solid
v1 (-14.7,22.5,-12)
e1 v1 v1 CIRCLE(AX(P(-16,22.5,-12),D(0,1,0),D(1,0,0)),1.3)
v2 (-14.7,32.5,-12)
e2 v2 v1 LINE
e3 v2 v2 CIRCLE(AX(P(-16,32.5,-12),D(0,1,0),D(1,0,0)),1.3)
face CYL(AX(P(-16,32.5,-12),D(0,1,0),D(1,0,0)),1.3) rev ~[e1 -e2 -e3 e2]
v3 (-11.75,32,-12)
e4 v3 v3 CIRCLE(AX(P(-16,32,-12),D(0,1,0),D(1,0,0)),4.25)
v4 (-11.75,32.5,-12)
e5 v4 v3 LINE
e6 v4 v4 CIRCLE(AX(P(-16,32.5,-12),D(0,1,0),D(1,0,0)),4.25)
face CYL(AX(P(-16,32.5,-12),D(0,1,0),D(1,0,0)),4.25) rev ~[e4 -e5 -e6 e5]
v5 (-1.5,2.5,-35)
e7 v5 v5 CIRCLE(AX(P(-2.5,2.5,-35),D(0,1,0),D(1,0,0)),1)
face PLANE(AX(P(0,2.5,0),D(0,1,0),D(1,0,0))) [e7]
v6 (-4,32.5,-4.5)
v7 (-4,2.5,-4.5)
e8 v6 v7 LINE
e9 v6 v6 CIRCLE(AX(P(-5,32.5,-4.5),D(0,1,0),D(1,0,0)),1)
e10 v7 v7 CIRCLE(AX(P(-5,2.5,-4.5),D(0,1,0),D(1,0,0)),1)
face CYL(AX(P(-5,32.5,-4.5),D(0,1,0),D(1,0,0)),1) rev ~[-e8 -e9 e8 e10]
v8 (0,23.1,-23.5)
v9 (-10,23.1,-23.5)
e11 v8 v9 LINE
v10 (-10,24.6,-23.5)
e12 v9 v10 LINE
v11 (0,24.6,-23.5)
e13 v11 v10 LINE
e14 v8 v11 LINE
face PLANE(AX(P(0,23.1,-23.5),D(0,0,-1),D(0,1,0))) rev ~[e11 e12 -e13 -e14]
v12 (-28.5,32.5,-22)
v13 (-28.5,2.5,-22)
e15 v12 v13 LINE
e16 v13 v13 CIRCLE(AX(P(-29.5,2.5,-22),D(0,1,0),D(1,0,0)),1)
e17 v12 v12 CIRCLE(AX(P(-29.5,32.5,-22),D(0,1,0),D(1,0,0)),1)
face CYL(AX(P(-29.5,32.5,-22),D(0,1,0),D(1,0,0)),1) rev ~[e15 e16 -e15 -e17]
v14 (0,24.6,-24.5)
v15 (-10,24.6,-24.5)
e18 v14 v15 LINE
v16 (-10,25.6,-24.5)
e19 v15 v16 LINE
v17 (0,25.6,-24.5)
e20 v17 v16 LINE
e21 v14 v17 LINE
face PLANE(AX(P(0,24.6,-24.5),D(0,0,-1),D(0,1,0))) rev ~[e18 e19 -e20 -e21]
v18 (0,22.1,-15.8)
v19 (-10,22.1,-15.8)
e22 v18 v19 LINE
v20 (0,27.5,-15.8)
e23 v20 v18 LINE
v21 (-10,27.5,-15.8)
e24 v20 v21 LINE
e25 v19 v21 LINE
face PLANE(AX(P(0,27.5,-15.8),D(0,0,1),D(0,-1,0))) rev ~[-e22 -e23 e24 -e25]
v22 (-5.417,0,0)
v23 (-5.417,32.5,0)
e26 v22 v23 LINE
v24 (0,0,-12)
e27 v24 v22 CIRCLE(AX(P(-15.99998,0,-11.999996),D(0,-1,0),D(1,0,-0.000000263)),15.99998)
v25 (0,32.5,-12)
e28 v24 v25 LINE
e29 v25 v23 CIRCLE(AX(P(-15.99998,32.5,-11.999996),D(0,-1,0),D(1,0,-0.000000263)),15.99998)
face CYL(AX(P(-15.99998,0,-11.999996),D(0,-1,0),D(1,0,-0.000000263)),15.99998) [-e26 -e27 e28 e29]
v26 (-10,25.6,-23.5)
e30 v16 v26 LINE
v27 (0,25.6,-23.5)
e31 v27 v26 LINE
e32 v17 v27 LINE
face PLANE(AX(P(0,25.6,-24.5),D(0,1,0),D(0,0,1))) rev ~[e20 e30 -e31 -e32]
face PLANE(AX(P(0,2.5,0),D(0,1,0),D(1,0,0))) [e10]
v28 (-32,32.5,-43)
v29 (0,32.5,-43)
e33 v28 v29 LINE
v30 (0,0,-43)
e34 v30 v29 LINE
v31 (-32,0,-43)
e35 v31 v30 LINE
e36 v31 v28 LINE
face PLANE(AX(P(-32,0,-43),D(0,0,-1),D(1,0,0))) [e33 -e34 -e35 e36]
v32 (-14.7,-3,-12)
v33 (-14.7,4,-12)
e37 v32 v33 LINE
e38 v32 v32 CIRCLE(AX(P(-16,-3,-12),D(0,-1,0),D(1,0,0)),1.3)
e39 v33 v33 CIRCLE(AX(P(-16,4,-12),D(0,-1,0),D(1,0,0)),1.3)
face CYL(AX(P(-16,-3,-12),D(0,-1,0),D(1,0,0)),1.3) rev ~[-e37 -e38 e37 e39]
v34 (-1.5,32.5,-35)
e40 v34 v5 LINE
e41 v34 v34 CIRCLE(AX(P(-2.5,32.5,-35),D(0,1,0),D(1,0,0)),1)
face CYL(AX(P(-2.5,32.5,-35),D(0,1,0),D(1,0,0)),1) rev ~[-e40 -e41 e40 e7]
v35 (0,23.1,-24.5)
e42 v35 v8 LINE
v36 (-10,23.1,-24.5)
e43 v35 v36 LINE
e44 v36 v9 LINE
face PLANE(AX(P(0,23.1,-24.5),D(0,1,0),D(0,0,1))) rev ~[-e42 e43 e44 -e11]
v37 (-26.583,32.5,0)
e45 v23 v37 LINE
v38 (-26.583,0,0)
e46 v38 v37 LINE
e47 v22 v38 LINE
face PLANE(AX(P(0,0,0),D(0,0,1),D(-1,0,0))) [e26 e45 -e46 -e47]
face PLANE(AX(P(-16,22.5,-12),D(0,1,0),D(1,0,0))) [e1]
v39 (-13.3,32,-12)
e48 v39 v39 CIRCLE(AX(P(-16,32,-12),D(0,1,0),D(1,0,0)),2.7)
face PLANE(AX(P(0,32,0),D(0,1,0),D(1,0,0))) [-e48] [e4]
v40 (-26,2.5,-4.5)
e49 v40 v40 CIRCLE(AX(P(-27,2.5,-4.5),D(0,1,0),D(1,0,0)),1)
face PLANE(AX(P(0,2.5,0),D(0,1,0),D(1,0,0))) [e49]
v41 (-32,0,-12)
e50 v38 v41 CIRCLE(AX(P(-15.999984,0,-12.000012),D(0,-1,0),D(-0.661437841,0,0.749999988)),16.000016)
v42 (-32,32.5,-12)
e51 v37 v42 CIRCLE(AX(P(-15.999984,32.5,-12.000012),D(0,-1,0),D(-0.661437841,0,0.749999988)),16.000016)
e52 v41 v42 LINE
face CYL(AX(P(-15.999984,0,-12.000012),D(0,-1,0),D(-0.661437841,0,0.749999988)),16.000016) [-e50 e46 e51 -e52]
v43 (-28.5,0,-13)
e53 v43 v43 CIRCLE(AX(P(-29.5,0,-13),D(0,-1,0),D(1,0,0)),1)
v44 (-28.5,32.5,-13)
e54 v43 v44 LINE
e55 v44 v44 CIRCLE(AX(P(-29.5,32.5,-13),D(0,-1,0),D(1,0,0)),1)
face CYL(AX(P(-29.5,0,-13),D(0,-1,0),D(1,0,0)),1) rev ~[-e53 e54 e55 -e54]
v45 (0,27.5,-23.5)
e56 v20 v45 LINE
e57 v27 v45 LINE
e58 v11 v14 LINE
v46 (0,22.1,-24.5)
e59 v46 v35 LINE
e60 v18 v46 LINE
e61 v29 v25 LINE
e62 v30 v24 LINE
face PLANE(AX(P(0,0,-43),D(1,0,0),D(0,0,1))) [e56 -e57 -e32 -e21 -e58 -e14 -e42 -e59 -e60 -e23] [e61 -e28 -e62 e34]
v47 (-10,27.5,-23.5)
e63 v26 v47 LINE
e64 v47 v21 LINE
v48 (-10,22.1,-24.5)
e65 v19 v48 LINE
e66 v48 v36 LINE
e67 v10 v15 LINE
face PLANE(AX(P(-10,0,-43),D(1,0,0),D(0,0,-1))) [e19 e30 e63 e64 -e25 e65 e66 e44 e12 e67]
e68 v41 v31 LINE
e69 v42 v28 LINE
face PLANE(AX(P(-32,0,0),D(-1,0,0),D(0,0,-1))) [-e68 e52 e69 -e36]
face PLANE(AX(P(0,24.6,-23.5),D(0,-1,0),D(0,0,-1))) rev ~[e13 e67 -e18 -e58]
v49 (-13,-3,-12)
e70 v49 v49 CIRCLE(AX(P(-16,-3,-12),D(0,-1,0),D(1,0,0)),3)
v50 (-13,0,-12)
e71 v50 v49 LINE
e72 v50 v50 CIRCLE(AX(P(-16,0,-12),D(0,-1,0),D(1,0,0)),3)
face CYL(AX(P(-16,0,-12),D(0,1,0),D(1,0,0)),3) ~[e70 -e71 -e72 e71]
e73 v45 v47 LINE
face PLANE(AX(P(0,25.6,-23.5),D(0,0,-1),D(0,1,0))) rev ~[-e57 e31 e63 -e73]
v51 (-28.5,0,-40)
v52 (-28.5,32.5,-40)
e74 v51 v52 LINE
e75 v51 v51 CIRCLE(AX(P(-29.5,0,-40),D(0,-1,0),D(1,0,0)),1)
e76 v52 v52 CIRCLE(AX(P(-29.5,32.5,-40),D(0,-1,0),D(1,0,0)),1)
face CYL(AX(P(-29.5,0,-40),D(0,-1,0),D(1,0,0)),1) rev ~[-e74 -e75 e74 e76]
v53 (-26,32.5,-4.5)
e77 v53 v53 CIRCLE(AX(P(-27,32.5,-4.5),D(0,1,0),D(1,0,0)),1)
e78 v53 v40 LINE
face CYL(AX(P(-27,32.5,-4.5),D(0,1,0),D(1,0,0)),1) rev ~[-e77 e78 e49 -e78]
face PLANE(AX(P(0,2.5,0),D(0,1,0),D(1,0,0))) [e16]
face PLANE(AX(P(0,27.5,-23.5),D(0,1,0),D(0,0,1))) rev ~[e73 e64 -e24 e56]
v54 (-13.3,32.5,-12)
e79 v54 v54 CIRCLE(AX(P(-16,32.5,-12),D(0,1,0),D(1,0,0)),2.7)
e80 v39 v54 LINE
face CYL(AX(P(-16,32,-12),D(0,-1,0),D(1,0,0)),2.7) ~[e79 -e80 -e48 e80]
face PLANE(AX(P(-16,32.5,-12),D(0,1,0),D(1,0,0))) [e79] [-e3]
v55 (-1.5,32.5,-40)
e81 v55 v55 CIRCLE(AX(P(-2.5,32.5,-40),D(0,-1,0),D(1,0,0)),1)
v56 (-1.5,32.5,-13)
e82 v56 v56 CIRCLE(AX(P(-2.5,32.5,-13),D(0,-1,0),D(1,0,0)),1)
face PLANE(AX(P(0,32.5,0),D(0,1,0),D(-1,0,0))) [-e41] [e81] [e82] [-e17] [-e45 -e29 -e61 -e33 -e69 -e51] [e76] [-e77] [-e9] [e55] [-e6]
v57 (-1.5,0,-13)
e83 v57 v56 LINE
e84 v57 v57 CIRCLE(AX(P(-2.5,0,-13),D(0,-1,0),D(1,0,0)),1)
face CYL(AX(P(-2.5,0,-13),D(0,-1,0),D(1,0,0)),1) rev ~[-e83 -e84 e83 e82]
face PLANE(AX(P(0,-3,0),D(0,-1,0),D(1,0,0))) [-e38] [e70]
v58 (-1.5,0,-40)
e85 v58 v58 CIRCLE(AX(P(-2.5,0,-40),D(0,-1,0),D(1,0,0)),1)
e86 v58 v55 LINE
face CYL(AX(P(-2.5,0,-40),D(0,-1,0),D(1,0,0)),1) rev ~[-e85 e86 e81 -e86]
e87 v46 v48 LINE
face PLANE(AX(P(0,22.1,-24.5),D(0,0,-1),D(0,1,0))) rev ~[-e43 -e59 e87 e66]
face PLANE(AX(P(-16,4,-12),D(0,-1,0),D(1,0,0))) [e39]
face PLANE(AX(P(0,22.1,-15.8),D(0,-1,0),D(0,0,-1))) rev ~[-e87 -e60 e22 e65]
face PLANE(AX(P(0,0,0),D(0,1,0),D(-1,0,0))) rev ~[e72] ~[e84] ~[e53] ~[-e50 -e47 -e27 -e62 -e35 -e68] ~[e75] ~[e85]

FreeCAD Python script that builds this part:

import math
import FreeCAD as App
import Part
import Sketcher

doc = App.newDocument("Part")
body = doc.addObject("PartDesign::Body", "Body")

sketch1 = body.newObject("Sketcher::SketchObject", "Sketch")
sketch1.AttachmentSupport = (doc.getObject("XZ_Plane"), [""])
sketch1.MapMode = "FlatFace"
sketch1.addGeometry([
    Part.LineSegment(App.Vector(-32, 0, 0), App.Vector(0, 0, 0)),
    Part.LineSegment(App.Vector(0, 0, 0), App.Vector(0, -43, 0)),
    Part.LineSegment(App.Vector(0, -43, 0), App.Vector(-32, -43, 0)),
    Part.LineSegment(App.Vector(-32, -43, 0), App.Vector(-32, 0, 0)),
], False)
sketch1.addConstraint([
    Sketcher.Constraint("Coincident", 0, 2, 1, 1),
    Sketcher.Constraint("Coincident", 1, 2, 2, 1),
    Sketcher.Constraint("Coincident", 2, 2, 3, 1),
    Sketcher.Constraint("Coincident", 3, 2, 0, 1),
    Sketcher.Constraint("Horizontal", 0),
    Sketcher.Constraint("Vertical", 1),
    Sketcher.Constraint("Horizontal", 2),
    Sketcher.Constraint("Vertical", 3),
    Sketcher.Constraint("Coincident", 0, 2, -1, 1),
    Sketcher.Constraint("DistanceX", 0, 1, 0, 2, 32.0),
    Sketcher.Constraint("DistanceY", 1, 2, 1, 1, 43.0),
])
pad1 = body.newObject("PartDesign::Pad", "Pad")
pad1.Profile = sketch1
pad1.Length = 32.5
pad1.Reversed = True

sketch2 = body.newObject("Sketcher::SketchObject", "Sketch001")
sketch2.AttachmentSupport = (doc.getObject("XZ_Plane"), [""])
sketch2.MapMode = "FlatFace"
sketch2.addGeometry([
    Part.LineSegment(App.Vector(-27, 0, 0), App.Vector(-32, 0, 0)),
    Part.LineSegment(App.Vector(-32, 0, 0), App.Vector(-32, -12, 0)),
    Part.ArcOfCircle(Part.Circle(App.Vector(-16, -12, 0), App.Vector(0, 0, 1), 16), math.radians(131), math.radians(180)),
    Part.LineSegment(App.Vector(0, 0, 0), App.Vector(-5, 0, 0)),
    Part.ArcOfCircle(Part.Circle(App.Vector(-16, -12, 0), App.Vector(0, 0, 1), 16), math.radians(0), math.radians(49)),
    Part.LineSegment(App.Vector(0, -12, 0), App.Vector(0, 0, 0)),
], False)
sketch2.addConstraint([
    Sketcher.Constraint("Coincident", 0, 2, 1, 1),
    Sketcher.Constraint("Tangent", 1, 2, 2, 2),
    Sketcher.Constraint("Coincident", 2, 1, 0, 1),
    Sketcher.Constraint("Coincident", 3, 2, 4, 2),
    Sketcher.Constraint("Tangent", 4, 1, 5, 1),
    Sketcher.Constraint("Coincident", 5, 2, 3, 1),
    Sketcher.Constraint("Horizontal", 0),
    Sketcher.Constraint("Vertical", 1),
    Sketcher.Constraint("Horizontal", 3),
    Sketcher.Constraint("Vertical", 5),
    Sketcher.Constraint("Coincident", 5, 2, -1, 1),
    Sketcher.Constraint("Coincident", 4, 3, 2, 3),
    Sketcher.Constraint("Equal", 2, 4),
    Sketcher.Constraint("PointOnObject", 0, 2, -1),
    Sketcher.Constraint("Radius", 2, 16.0),
    Sketcher.Constraint("DistanceY", 1, 2, 1, 1, 12.0),
])
pocket1 = body.newObject("PartDesign::Pocket", "Pocket")
pocket1.Profile = sketch2
pocket1.Length = 32.5

sketch3 = body.newObject("Sketcher::SketchObject", "Sketch002")
sketch3.AttachmentSupport = (doc.getObject("XZ_Plane"), [""])
sketch3.MapMode = "FlatFace"
sketch3.addGeometry([
    Part.Circle(App.Vector(-29.5, -13, 0), App.Vector(0, 0, 1), 1),
    Part.Circle(App.Vector(-2.5, -13, 0), App.Vector(0, 0, 1), 1),
    Part.Circle(App.Vector(-29.5, -40, 0), App.Vector(0, 0, 1), 1),
    Part.Circle(App.Vector(-2.5, -40, 0), App.Vector(0, 0, 1), 1),
], False)
sketch3.addConstraint([
    Sketcher.Constraint("Equal", 0, 1),
    Sketcher.Constraint("Equal", 1, 2),
    Sketcher.Constraint("Equal", 2, 3),
    Sketcher.Constraint("Horizontal", 0, 3, 1, 3),
    Sketcher.Constraint("Horizontal", 2, 3, 3, 3),
    Sketcher.Constraint("Vertical", 0, 3, 2, 3),
    Sketcher.Constraint("Vertical", 1, 3, 3, 3),
    Sketcher.Constraint("Diameter", 0, 2.0),
    Sketcher.Constraint("DistanceY", 0, 3, -1, 1, 13.0),
    Sketcher.Constraint("DistanceY", 2, 3, -1, 1, 40.0),
    Sketcher.Constraint("DistanceX", 0, 3, 1, 3, 27.0),
    Sketcher.Constraint("DistanceX", 0, 3, -1, 1, 29.5),
])
pocket2 = body.newObject("PartDesign::Pocket", "Pocket001")
pocket2.Profile = sketch3
pocket2.Length = 32.5

sketch4 = body.newObject("Sketcher::SketchObject", "Sketch003")
sketch4.AttachmentSupport = (doc.getObject("XZ_Plane"), [""])
sketch4.MapMode = "FlatFace"
sketch4.AttachmentOffset = App.Placement(App.Vector(0, 0, -32.5), App.Rotation())
sketch4.addGeometry([
    Part.Circle(App.Vector(-2.5, -35, 0), App.Vector(0, 0, 1), 1),
    Part.Circle(App.Vector(-29.5, -22, 0), App.Vector(0, 0, 1), 1),
    Part.Circle(App.Vector(-27, -4.5, 0), App.Vector(0, 0, 1), 1),
    Part.Circle(App.Vector(-5, -4.5, 0), App.Vector(0, 0, 1), 1),
], False)
sketch4.addConstraint([
    Sketcher.Constraint("Equal", 0, 1),
    Sketcher.Constraint("Equal", 1, 2),
    Sketcher.Constraint("Equal", 2, 3),
    Sketcher.Constraint("Horizontal", 2, 3, 3, 3),
    Sketcher.Constraint("Diameter", 0, 2.0),
    Sketcher.Constraint("DistanceY", 0, 3, -1, 1, 35.0),
    Sketcher.Constraint("DistanceY", 1, 3, -1, 1, 22.0),
    Sketcher.Constraint("DistanceX", 2, 3, -1, 1, 27.0),
    Sketcher.Constraint("DistanceX", 3, 3, -1, 1, 5.0),
    Sketcher.Constraint("DistanceX", 1, 3, 0, 3, 27.0),
    Sketcher.Constraint("DistanceX", 0, 3, -1, 1, 2.5),
    Sketcher.Constraint("DistanceY", 2, 3, -1, 1, 4.5),
])
pocket3 = body.newObject("PartDesign::Pocket", "Pocket002")
pocket3.Profile = sketch4
pocket3.Length = 30
pocket3.Reversed = True

sketch5 = body.newObject("Sketcher::SketchObject", "Sketch004")
sketch5.AttachmentSupport = (doc.getObject("XZ_Plane"), [""])
sketch5.MapMode = "FlatFace"
sketch5.addGeometry(Part.Circle(App.Vector(-16, -12, 0), App.Vector(0, 0, 1), 3), False)
sketch5.addConstraint([
    Sketcher.Constraint("Diameter", 0, 6.0),
    Sketcher.Constraint("DistanceX", 0, 3, -1, 1, 16.0),
    Sketcher.Constraint("DistanceY", 0, 3, -1, 1, 12.0),
])
pad2 = body.newObject("PartDesign::Pad", "Pad001")
pad2.Profile = sketch5
pad2.Length = 3

sketch6 = body.newObject("Sketcher::SketchObject", "Sketch005")
sketch6.AttachmentSupport = (doc.getObject("XZ_Plane"), [""])
sketch6.MapMode = "FlatFace"
sketch6.AttachmentOffset = App.Placement(App.Vector(0, 0, 3), App.Rotation())
sketch6.addGeometry(Part.Circle(App.Vector(-16, -12, 0), App.Vector(0, 0, 1), 1.3), False)
sketch6.addConstraint([
    Sketcher.Constraint("Diameter", 0, 2.6),
    Sketcher.Constraint("DistanceX", 0, 3, -1, 1, 16.0),
    Sketcher.Constraint("DistanceY", 0, 3, -1, 1, 12.0),
])
pocket4 = body.newObject("PartDesign::Pocket", "Pocket003")
pocket4.Profile = sketch6
pocket4.Length = 7

sketch7 = body.newObject("Sketcher::SketchObject", "Sketch006")
sketch7.AttachmentSupport = (doc.getObject("XZ_Plane"), [""])
sketch7.MapMode = "FlatFace"
sketch7.AttachmentOffset = App.Placement(App.Vector(0, 0, -32.5), App.Rotation())
sketch7.addGeometry(Part.Circle(App.Vector(-16, -12, 0), App.Vector(0, 0, 1), 4.2), False)
sketch7.addConstraint([
    Sketcher.Constraint("Diameter", 0, 8.5),
    Sketcher.Constraint("DistanceX", 0, 3, -1, 1, 16.0),
    Sketcher.Constraint("DistanceY", 0, 3, -1, 1, 12.0),
])
pocket5 = body.newObject("PartDesign::Pocket", "Pocket004")
pocket5.Profile = sketch7
pocket5.Length = 0.5
pocket5.Reversed = True

sketch8 = body.newObject("Sketcher::SketchObject", "Sketch007")
sketch8.AttachmentSupport = (doc.getObject("XZ_Plane"), [""])
sketch8.MapMode = "FlatFace"
sketch8.AttachmentOffset = App.Placement(App.Vector(0, 0, -32), App.Rotation())
sketch8.addGeometry(Part.Circle(App.Vector(-16, -12, 0), App.Vector(0, 0, 1), 2.7), False)
sketch8.addConstraint([
    Sketcher.Constraint("Diameter", 0, 5.4),
    Sketcher.Constraint("DistanceX", 0, 3, -1, 1, 16.0),
    Sketcher.Constraint("DistanceY", 0, 3, -1, 1, 12.0),
])
pad3 = body.newObject("PartDesign::Pad", "Pad002")
pad3.Profile = sketch8
pad3.Length = 0.5
pad3.Reversed = True

sketch9 = body.newObject("Sketcher::SketchObject", "Sketch008")
sketch9.AttachmentSupport = (doc.getObject("XZ_Plane"), [""])
sketch9.MapMode = "FlatFace"
sketch9.AttachmentOffset = App.Placement(App.Vector(0, 0, -32.5), App.Rotation())
sketch9.addGeometry(Part.Circle(App.Vector(-16, -12, 0), App.Vector(0, 0, 1), 1.3), False)
sketch9.addConstraint([
    Sketcher.Constraint("Diameter", 0, 2.6),
    Sketcher.Constraint("DistanceX", 0, 3, -1, 1, 16.0),
    Sketcher.Constraint("DistanceY", 0, 3, -1, 1, 12.0),
])
pocket6 = body.newObject("PartDesign::Pocket", "Pocket005")
pocket6.Profile = sketch9
pocket6.Length = 10
pocket6.Reversed = True

sketch10 = body.newObject("Sketcher::SketchObject", "Sketch009")
sketch10.AttachmentSupport = (doc.getObject("YZ_Plane"), [""])
sketch10.MapMode = "FlatFace"
sketch10.addGeometry([
    Part.LineSegment(App.Vector(27.5, -23.5, 0), App.Vector(27.5, -15.8, 0)),
    Part.LineSegment(App.Vector(27.5, -15.8, 0), App.Vector(22.1, -15.8, 0)),
    Part.LineSegment(App.Vector(22.1, -15.8, 0), App.Vector(22.1, -24.5, 0)),
    Part.LineSegment(App.Vector(22.1, -24.5, 0), App.Vector(23.1, -24.5, 0)),
    Part.LineSegment(App.Vector(23.1, -24.5, 0), App.Vector(23.1, -23.5, 0)),
    Part.LineSegment(App.Vector(23.1, -23.5, 0), App.Vector(24.6, -23.5, 0)),
    Part.LineSegment(App.Vector(24.6, -23.5, 0), App.Vector(24.6, -24.5, 0)),
    Part.LineSegment(App.Vector(24.6, -24.5, 0), App.Vector(25.6, -24.5, 0)),
    Part.LineSegment(App.Vector(25.6, -24.5, 0), App.Vector(25.6, -23.5, 0)),
    Part.LineSegment(App.Vector(25.6, -23.5, 0), App.Vector(27.5, -23.5, 0)),
], False)
sketch10.addConstraint([
    Sketcher.Constraint("Coincident", 0, 2, 1, 1),
    Sketcher.Constraint("Coincident", 1, 2, 2, 1),
    Sketcher.Constraint("Coincident", 2, 2, 3, 1),
    Sketcher.Constraint("Coincident", 3, 2, 4, 1),
    Sketcher.Constraint("Coincident", 4, 2, 5, 1),
    Sketcher.Constraint("Coincident", 5, 2, 6, 1),
    Sketcher.Constraint("Coincident", 6, 2, 7, 1),
    Sketcher.Constraint("Coincident", 7, 2, 8, 1),
    Sketcher.Constraint("Coincident", 8, 2, 9, 1),
    Sketcher.Constraint("Coincident", 9, 2, 0, 1),
    Sketcher.Constraint("Vertical", 0),
    Sketcher.Constraint("Horizontal", 1),
    Sketcher.Constraint("Vertical", 2),
    Sketcher.Constraint("Horizontal", 3),
    Sketcher.Constraint("Vertical", 4),
    Sketcher.Constraint("Horizontal", 5),
    Sketcher.Constraint("Vertical", 6),
    Sketcher.Constraint("Horizontal", 7),
    Sketcher.Constraint("Vertical", 8),
    Sketcher.Constraint("Horizontal", 9),
    Sketcher.Constraint("Horizontal", 3, 2, 6, 2),
    Sketcher.Constraint("Horizontal", 5, 2, 8, 2),
    Sketcher.Constraint("Equal", 3, 7),
    Sketcher.Constraint("Equal", 7, 4),
    Sketcher.Constraint("DistanceX", 3, 1, 3, 2, 1.0),
    Sketcher.Constraint("DistanceY", 2, 2, 2, 1, 8.7),
    Sketcher.Constraint("DistanceX", 2, 2, 5, 2, 2.5),
    Sketcher.Constraint("DistanceX", 5, 2, 0, 2, 2.9),
    Sketcher.Constraint("DistanceX", -1, 1, 0, 2, 27.5),
    Sketcher.Constraint("DistanceY", 0, 2, -1, 1, 15.8),
])
pocket7 = body.newObject("PartDesign::Pocket", "Pocket006")
pocket7.Profile = sketch10
pocket7.Length = 10

doc.recompute()
